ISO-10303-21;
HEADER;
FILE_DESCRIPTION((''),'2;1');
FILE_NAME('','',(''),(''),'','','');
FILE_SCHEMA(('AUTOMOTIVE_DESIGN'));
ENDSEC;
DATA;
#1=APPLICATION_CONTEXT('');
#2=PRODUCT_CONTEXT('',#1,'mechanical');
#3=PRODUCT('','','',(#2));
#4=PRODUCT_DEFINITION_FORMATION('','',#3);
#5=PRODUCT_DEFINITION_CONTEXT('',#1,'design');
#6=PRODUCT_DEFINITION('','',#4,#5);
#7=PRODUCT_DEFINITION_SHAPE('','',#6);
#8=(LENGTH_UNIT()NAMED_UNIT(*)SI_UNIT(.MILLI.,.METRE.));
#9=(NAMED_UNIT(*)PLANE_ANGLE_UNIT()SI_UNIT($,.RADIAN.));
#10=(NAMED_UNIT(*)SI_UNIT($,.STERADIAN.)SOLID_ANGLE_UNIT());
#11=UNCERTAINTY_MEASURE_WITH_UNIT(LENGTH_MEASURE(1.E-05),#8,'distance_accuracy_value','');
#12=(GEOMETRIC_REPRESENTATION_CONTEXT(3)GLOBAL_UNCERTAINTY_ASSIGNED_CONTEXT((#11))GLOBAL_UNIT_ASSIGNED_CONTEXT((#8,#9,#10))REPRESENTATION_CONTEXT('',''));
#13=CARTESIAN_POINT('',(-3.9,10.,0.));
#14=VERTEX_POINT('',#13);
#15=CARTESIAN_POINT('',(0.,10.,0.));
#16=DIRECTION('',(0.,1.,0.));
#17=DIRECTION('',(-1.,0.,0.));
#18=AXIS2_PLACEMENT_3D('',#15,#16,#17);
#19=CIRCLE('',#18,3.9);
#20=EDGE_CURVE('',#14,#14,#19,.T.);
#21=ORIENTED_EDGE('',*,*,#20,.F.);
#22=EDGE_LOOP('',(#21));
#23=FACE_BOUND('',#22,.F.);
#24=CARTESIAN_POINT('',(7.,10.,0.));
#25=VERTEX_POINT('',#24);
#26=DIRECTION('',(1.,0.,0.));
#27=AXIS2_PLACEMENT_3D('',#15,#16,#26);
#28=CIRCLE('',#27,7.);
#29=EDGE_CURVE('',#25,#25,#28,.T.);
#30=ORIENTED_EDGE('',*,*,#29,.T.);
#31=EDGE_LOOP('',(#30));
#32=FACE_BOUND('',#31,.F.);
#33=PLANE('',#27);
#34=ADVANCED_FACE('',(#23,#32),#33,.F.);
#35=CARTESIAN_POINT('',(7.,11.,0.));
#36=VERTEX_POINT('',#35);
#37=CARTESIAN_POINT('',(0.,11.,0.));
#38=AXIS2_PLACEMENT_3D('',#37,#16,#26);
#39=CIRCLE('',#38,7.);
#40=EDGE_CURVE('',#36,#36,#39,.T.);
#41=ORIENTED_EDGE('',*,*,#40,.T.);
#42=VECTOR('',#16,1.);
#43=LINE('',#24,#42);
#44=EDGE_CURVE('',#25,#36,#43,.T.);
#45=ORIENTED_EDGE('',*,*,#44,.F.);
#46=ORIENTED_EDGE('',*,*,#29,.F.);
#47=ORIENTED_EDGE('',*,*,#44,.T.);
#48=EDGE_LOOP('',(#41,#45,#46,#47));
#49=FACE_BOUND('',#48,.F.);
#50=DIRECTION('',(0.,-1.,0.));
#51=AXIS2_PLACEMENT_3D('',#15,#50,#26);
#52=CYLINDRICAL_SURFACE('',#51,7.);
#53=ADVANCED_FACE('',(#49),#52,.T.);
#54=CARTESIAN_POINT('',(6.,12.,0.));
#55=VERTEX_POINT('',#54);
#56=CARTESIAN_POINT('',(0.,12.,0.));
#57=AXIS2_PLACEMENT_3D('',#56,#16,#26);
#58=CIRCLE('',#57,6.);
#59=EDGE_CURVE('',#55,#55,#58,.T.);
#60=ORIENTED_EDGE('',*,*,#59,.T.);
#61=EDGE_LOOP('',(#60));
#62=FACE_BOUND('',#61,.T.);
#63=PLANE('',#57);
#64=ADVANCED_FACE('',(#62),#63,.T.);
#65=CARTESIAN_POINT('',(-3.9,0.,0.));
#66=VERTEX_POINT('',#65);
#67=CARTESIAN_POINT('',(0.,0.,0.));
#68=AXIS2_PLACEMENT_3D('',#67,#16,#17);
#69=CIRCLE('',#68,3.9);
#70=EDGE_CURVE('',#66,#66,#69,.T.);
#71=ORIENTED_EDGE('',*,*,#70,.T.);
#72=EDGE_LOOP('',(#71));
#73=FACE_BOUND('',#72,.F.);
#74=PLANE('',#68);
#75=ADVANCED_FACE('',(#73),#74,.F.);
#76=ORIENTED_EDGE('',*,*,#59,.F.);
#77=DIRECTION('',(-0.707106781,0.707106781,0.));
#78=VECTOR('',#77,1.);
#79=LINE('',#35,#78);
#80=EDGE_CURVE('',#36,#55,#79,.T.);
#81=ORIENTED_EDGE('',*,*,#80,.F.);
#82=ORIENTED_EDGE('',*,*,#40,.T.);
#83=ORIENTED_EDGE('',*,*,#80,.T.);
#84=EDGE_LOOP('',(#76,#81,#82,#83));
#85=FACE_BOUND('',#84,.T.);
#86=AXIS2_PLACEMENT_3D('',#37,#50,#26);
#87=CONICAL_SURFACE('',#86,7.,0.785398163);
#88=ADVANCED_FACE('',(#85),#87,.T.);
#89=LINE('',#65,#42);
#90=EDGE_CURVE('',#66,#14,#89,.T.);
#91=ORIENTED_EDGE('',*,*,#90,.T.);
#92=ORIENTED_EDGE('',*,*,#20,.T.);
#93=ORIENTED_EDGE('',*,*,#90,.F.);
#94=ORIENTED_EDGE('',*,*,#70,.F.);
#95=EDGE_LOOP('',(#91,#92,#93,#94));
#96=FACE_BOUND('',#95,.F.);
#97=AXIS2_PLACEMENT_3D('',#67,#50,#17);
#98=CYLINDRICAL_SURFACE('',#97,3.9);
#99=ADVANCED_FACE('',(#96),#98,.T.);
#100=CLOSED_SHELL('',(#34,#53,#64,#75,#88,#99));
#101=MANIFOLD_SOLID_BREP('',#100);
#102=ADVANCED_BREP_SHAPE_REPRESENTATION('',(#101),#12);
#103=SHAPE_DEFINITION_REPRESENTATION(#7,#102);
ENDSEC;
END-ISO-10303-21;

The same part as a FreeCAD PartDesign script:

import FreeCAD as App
import Part
import Sketcher

V = App.Vector


def edges_at(feature, points):
    """Names of the edges that pass closest to the given points."""
    edges = feature.Shape.Edges
    near = lambda p: min(range(len(edges)), key=lambda i: edges[i].distToShape(Part.Vertex(*p))[0])
    return sorted({f"Edge{near(p) + 1}" for p in points})

doc = App.newDocument("Part")
body = doc.addObject("PartDesign::Body", "Body")

# Sketch on XZ plane
sketch1 = doc.addObject("Sketcher::SketchObject", "Sketch")
body.addObject(sketch1)
sketch1.AttachmentSupport = (doc.XZ_Plane, [""])
sketch1.MapMode = "FlatFace"
sketch1.addGeometry(Part.Circle(V(0, 0, 0), V(0, 0, 1), 3.9), False)
sketch1.addConstraint([
    Sketcher.Constraint("Coincident", 0, 3, -1, 1),
    Sketcher.Constraint("Diameter", 0, 7.8),
])
pad1 = doc.addObject("PartDesign::Pad", "Pad")
body.addObject(pad1)
pad1.Profile = sketch1
pad1.Length = 10
pad1.Reversed = True

# Sketch on XZ plane
sketch2 = doc.addObject("Sketcher::SketchObject", "Sketch001")
body.addObject(sketch2)
sketch2.AttachmentSupport = (doc.XZ_Plane, [""])
sketch2.MapMode = "FlatFace"
sketch2.AttachmentOffset = App.Placement(V(0, 0, -10), App.Rotation())
sketch2.addGeometry(Part.Circle(V(0, 0, 0), V(0, 0, 1), 7), False)
sketch2.addConstraint([
    Sketcher.Constraint("Coincident", 0, 3, -1, 1),
    Sketcher.Constraint("Diameter", 0, 14.0),
])
pad2 = doc.addObject("PartDesign::Pad", "Pad001")
body.addObject(pad2)
pad2.Profile = sketch2
pad2.Length = 2
pad2.Reversed = True
doc.recompute()

chamfer = doc.addObject("PartDesign::Chamfer", "Chamfer")
body.addObject(chamfer)
chamfer.Base = (pad2, edges_at(pad2, [(-7, 12, 0)]))
chamfer.Size = 1

doc.recompute()
